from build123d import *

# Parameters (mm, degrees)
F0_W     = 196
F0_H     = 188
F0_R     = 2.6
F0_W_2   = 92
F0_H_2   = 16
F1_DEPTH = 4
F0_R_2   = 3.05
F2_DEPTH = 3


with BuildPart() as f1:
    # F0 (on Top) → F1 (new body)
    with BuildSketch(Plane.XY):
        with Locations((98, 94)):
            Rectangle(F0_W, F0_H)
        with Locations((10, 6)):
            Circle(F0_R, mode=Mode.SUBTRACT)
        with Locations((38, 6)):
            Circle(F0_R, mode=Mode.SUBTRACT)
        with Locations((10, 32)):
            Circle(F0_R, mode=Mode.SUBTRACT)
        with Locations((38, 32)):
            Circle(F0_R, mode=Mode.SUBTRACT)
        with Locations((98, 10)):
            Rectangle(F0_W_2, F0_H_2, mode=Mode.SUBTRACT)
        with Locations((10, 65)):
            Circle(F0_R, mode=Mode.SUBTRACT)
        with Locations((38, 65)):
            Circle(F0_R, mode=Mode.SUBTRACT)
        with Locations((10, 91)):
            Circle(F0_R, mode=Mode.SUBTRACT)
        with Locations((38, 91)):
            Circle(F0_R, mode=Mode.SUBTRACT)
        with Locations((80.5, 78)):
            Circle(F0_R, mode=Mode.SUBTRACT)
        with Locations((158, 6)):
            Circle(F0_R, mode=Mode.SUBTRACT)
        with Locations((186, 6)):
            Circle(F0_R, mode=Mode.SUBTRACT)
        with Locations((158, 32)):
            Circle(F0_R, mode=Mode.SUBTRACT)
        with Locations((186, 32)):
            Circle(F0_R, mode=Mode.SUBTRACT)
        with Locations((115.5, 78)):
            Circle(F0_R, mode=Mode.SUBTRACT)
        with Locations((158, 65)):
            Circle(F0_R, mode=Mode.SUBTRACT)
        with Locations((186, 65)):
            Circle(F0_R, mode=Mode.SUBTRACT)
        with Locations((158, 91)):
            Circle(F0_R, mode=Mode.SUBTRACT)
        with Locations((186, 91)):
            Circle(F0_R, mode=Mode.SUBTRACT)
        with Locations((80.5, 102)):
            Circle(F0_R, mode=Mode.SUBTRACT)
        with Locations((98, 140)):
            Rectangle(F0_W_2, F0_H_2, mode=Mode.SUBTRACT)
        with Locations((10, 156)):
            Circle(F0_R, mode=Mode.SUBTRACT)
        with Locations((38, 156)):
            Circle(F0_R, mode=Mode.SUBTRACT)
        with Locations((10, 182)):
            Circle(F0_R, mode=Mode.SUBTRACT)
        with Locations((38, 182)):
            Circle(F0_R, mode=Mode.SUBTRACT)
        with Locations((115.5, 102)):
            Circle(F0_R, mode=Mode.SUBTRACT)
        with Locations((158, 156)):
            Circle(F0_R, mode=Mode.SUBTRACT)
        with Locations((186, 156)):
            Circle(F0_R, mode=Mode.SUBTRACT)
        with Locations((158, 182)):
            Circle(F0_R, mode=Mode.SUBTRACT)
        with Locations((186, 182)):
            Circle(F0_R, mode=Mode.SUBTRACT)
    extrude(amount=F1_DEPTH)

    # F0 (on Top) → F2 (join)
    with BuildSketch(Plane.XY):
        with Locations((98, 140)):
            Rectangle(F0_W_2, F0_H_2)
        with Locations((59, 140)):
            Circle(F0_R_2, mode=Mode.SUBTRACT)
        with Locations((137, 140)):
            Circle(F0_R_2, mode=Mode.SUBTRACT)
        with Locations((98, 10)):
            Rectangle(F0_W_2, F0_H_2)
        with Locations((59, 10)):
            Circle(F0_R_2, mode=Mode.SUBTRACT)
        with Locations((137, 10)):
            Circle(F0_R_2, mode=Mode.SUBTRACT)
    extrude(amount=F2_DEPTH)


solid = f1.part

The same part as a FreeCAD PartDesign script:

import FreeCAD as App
import Part
import Sketcher

V = App.Vector


def add_polygon(sketch, points):
    """Adds a closed chain of lines whose ends are joined by coincident constraints."""
    first, n = sketch.GeometryCount, len(points)
    for a, b in zip(points, points[1:] + points[:1]):
        sketch.addGeometry(Part.LineSegment(App.Vector(*a, 0), App.Vector(*b, 0)), False)
    for i in range(n):
        sketch.addConstraint(Sketcher.Constraint("Coincident", first + i, 2, first + (i + 1) % n, 1))

doc = App.newDocument("Part")
body = doc.addObject("PartDesign::Body", "Body")

sketch1 = body.newObject("Sketcher::SketchObject", "Sketch")
sketch1.AttachmentSupport = (doc.getObject("XY_Plane"), [""])
sketch1.MapMode = "FlatFace"
add_polygon(sketch1, [(0, 188), (0, 0), (196, 0), (196, 188)])
sketch1.addGeometry(Part.Circle(V(10, 6, 0), V(0, 0, 1), 2.6), False)
sketch1.addGeometry(Part.Circle(V(38, 6, 0), V(0, 0, 1), 2.6), False)
sketch1.addGeometry(Part.Circle(V(10, 32, 0), V(0, 0, 1), 2.6), False)
sketch1.addGeometry(Part.Circle(V(38, 32, 0), V(0, 0, 1), 2.6), False)
sketch1.addGeometry(Part.Circle(V(10, 65, 0), V(0, 0, 1), 2.6), False)
sketch1.addGeometry(Part.Circle(V(38, 65, 0), V(0, 0, 1), 2.6), False)
sketch1.addGeometry(Part.Circle(V(10, 91, 0), V(0, 0, 1), 2.6), False)
sketch1.addGeometry(Part.Circle(V(38, 91, 0), V(0, 0, 1), 2.6), False)
sketch1.addGeometry(Part.Circle(V(80.5, 78, 0), V(0, 0, 1), 2.6), False)
add_polygon(sketch1, [(144, 2), (52, 2), (52, 18), (144, 18)])
sketch1.addGeometry(Part.Circle(V(158, 6, 0), V(0, 0, 1), 2.6), False)
sketch1.addGeometry(Part.Circle(V(186, 6, 0), V(0, 0, 1), 2.6), False)
sketch1.addGeometry(Part.Circle(V(158, 32, 0), V(0, 0, 1), 2.6), False)
sketch1.addGeometry(Part.Circle(V(186, 32, 0), V(0, 0, 1), 2.6), False)
sketch1.addGeometry(Part.Circle(V(115.5, 78, 0), V(0, 0, 1), 2.6), False)
sketch1.addGeometry(Part.Circle(V(158, 65, 0), V(0, 0, 1), 2.6), False)
sketch1.addGeometry(Part.Circle(V(186, 65, 0), V(0, 0, 1), 2.6), False)
sketch1.addGeometry(Part.Circle(V(158, 91, 0), V(0, 0, 1), 2.6), False)
sketch1.addGeometry(Part.Circle(V(186, 91, 0), V(0, 0, 1), 2.6), False)
sketch1.addGeometry(Part.Circle(V(80.5, 102, 0), V(0, 0, 1), 2.6), False)
sketch1.addGeometry(Part.Circle(V(10, 156, 0), V(0, 0, 1), 2.6), False)
sketch1.addGeometry(Part.Circle(V(38, 156, 0), V(0, 0, 1), 2.6), False)
sketch1.addGeometry(Part.Circle(V(10, 182, 0), V(0, 0, 1), 2.6), False)
sketch1.addGeometry(Part.Circle(V(38, 182, 0), V(0, 0, 1), 2.6), False)
sketch1.addGeometry(Part.Circle(V(115.5, 102, 0), V(0, 0, 1), 2.6), False)
add_polygon(sketch1, [(144, 132), (52, 132), (52, 148), (144, 148)])
sketch1.addGeometry(Part.Circle(V(158, 156, 0), V(0, 0, 1), 2.6), False)
sketch1.addGeometry(Part.Circle(V(186, 156, 0), V(0, 0, 1), 2.6), False)
sketch1.addGeometry(Part.Circle(V(158, 182, 0), V(0, 0, 1), 2.6), False)
sketch1.addGeometry(Part.Circle(V(186, 182, 0), V(0, 0, 1), 2.6), False)
sketch1.addConstraint(Sketcher.Constraint("Vertical", 0))
sketch1.addConstraint(Sketcher.Constraint("Horizontal", 1))
sketch1.addConstraint(Sketcher.Constraint("Vertical", 2))
sketch1.addConstraint(Sketcher.Constraint("Horizontal", 3))
sketch1.addConstraint(Sketcher.Constraint("Horizontal", 13))
sketch1.addConstraint(Sketcher.Constraint("Vertical", 14))
sketch1.addConstraint(Sketcher.Constraint("Horizontal", 15))
sketch1.addConstraint(Sketcher.Constraint("Vertical", 16))
sketch1.addConstraint(Sketcher.Constraint("Horizontal", 32))
sketch1.addConstraint(Sketcher.Constraint("Vertical", 33))
sketch1.addConstraint(Sketcher.Constraint("Horizontal", 34))
sketch1.addConstraint(Sketcher.Constraint("Vertical", 35))
sketch1.addConstraint(Sketcher.Constraint("Coincident", 0, 2, -1, 1))
sketch1.addConstraint(Sketcher.Constraint("Equal", 4, 5))
sketch1.addConstraint(Sketcher.Constraint("Equal", 5, 6))
sketch1.addConstraint(Sketcher.Constraint("Equal", 6, 7))
sketch1.addConstraint(Sketcher.Constraint("Equal", 7, 8))
sketch1.addConstraint(Sketcher.Constraint("Equal", 8, 9))
sketch1.addConstraint(Sketcher.Constraint("Equal", 9, 10))
sketch1.addConstraint(Sketcher.Constraint("Equal", 10, 11))
sketch1.addConstraint(Sketcher.Constraint("Equal", 11, 12))
sketch1.addConstraint(Sketcher.Constraint("Equal", 12, 17))
sketch1.addConstraint(Sketcher.Constraint("Equal", 17, 18))
sketch1.addConstraint(Sketcher.Constraint("Equal", 18, 19))
sketch1.addConstraint(Sketcher.Constraint("Equal", 19, 20))
sketch1.addConstraint(Sketcher.Constraint("Equal", 20, 21))
sketch1.addConstraint(Sketcher.Constraint("Equal", 21, 22))
sketch1.addConstraint(Sketcher.Constraint("Equal", 22, 23))
sketch1.addConstraint(Sketcher.Constraint("Equal", 23, 24))
sketch1.addConstraint(Sketcher.Constraint("Equal", 24, 25))
sketch1.addConstraint(Sketcher.Constraint("Equal", 25, 26))
sketch1.addConstraint(Sketcher.Constraint("Equal", 26, 27))
sketch1.addConstraint(Sketcher.Constraint("Equal", 27, 28))
sketch1.addConstraint(Sketcher.Constraint("Equal", 28, 29))
sketch1.addConstraint(Sketcher.Constraint("Equal", 29, 30))
sketch1.addConstraint(Sketcher.Constraint("Equal", 30, 31))
sketch1.addConstraint(Sketcher.Constraint("Equal", 31, 36))
sketch1.addConstraint(Sketcher.Constraint("Equal", 36, 37))
sketch1.addConstraint(Sketcher.Constraint("Equal", 37, 38))
sketch1.addConstraint(Sketcher.Constraint("Equal", 38, 39))
sketch1.addConstraint(Sketcher.Constraint("Horizontal", 4, 3, 5, 3))
sketch1.addConstraint(Sketcher.Constraint("Horizontal", 6, 3, 7, 3))
sketch1.addConstraint(Sketcher.Constraint("Horizontal", 8, 3, 9, 3))
sketch1.addConstraint(Sketcher.Constraint("Horizontal", 10, 3, 11, 3))
sketch1.addConstraint(Sketcher.Constraint("Horizontal", 5, 3, 17, 3))
sketch1.addConstraint(Sketcher.Constraint("Horizontal", 17, 3, 18, 3))
sketch1.addConstraint(Sketcher.Constraint("Horizontal", 7, 3, 19, 3))
sketch1.addConstraint(Sketcher.Constraint("Horizontal", 19, 3, 20, 3))
sketch1.addConstraint(Sketcher.Constraint("Horizontal", 12, 3, 21, 3))
sketch1.addConstraint(Sketcher.Constraint("Horizontal", 9, 3, 22, 3))
sketch1.addConstraint(Sketcher.Constraint("Horizontal", 22, 3, 23, 3))
sketch1.addConstraint(Sketcher.Constraint("Horizontal", 11, 3, 24, 3))
sketch1.addConstraint(Sketcher.Constraint("Horizontal", 24, 3, 25, 3))
sketch1.addConstraint(Sketcher.Constraint("Horizontal", 27, 3, 28, 3))
sketch1.addConstraint(Sketcher.Constraint("Horizontal", 29, 3, 30, 3))
sketch1.addConstraint(Sketcher.Constraint("Horizontal", 26, 3, 31, 3))
sketch1.addConstraint(Sketcher.Constraint("Horizontal", 28, 3, 36, 3))
sketch1.addConstraint(Sketcher.Constraint("Horizontal", 36, 3, 37, 3))
sketch1.addConstraint(Sketcher.Constraint("Horizontal", 30, 3, 38, 3))
sketch1.addConstraint(Sketcher.Constraint("Horizontal", 38, 3, 39, 3))
sketch1.addConstraint(Sketcher.Constraint("Vertical", 4, 3, 6, 3))
sketch1.addConstraint(Sketcher.Constraint("Vertical", 5, 3, 7, 3))
sketch1.addConstraint(Sketcher.Constraint("Vertical", 6, 3, 8, 3))
sketch1.addConstraint(Sketcher.Constraint("Vertical", 7, 3, 9, 3))
sketch1.addConstraint(Sketcher.Constraint("Vertical", 8, 3, 10, 3))
sketch1.addConstraint(Sketcher.Constraint("Vertical", 9, 3, 11, 3))
sketch1.addConstraint(Sketcher.Constraint("Vertical", 17, 3, 19, 3))
sketch1.addConstraint(Sketcher.Constraint("Vertical", 18, 3, 20, 3))
sketch1.addConstraint(Sketcher.Constraint("Vertical", 19, 3, 22, 3))
sketch1.addConstraint(Sketcher.Constraint("Vertical", 20, 3, 23, 3))
sketch1.addConstraint(Sketcher.Constraint("Vertical", 22, 3, 24, 3))
sketch1.addConstraint(Sketcher.Constraint("Vertical", 23, 3, 25, 3))
sketch1.addConstraint(Sketcher.Constraint("Vertical", 12, 3, 26, 3))
sketch1.addConstraint(Sketcher.Constraint("Vertical", 10, 3, 27, 3))
sketch1.addConstraint(Sketcher.Constraint("Vertical", 11, 3, 28, 3))
sketch1.addConstraint(Sketcher.Constraint("Vertical", 27, 3, 29, 3))
sketch1.addConstraint(Sketcher.Constraint("Vertical", 28, 3, 30, 3))
sketch1.addConstraint(Sketcher.Constraint("Vertical", 21, 3, 31, 3))
sketch1.addConstraint(Sketcher.Constraint("Vertical", 24, 3, 36, 3))
sketch1.addConstraint(Sketcher.Constraint("Vertical", 25, 3, 37, 3))
sketch1.addConstraint(Sketcher.Constraint("Vertical", 36, 3, 38, 3))
sketch1.addConstraint(Sketcher.Constraint("Vertical", 37, 3, 39, 3))
sketch1.addConstraint(Sketcher.Constraint("Vertical", 14, 2, 32, 2))
sketch1.addConstraint(Sketcher.Constraint("Vertical", 16, 2, 34, 2))
sketch1.addConstraint(Sketcher.Constraint("Equal", 16, 33))
sketch1.addConstraint(Sketcher.Constraint("Diameter", 4, 5.2))
sketch1.addConstraint(Sketcher.Constraint("DistanceX", 1, 1, 1, 2, 196.0))
sketch1.addConstraint(Sketcher.Constraint("DistanceX", 13, 2, 13, 1, 92.0))
sketch1.addConstraint(Sketcher.Constraint("DistanceY", 0, 2, 0, 1, 188.0))
sketch1.addConstraint(Sketcher.Constraint("DistanceY", 14, 1, 14, 2, 16.0))
sketch1.addConstraint(Sketcher.Constraint("DistanceX", -1, 1, 4, 3, 10.0))
sketch1.addConstraint(Sketcher.Constraint("DistanceY", -1, 1, 4, 3, 6.0))
sketch1.addConstraint(Sketcher.Constraint("DistanceX", -1, 1, 5, 3, 38.0))
sketch1.addConstraint(Sketcher.Constraint("DistanceY", -1, 1, 6, 3, 32.0))
sketch1.addConstraint(Sketcher.Constraint("DistanceY", -1, 1, 8, 3, 65.0))
sketch1.addConstraint(Sketcher.Constraint("DistanceY", -1, 1, 10, 3, 91.0))
sketch1.addConstraint(Sketcher.Constraint("DistanceY", -1, 1, 12, 3, 78.0))
sketch1.addConstraint(Sketcher.Constraint("DistanceX", -1, 1, 17, 3, 158.0))
sketch1.addConstraint(Sketcher.Constraint("DistanceX", -1, 1, 18, 3, 186.0))
sketch1.addConstraint(Sketcher.Constraint("DistanceY", -1, 1, 26, 3, 102.0))
sketch1.addConstraint(Sketcher.Constraint("DistanceY", -1, 1, 27, 3, 156.0))
sketch1.addConstraint(Sketcher.Constraint("DistanceY", -1, 1, 29, 3, 182.0))
sketch1.addConstraint(Sketcher.Constraint("DistanceX", -1, 1, 13, 2, 52.0))
sketch1.addConstraint(Sketcher.Constraint("DistanceY", -1, 1, 13, 2, 2.0))
sketch1.addConstraint(Sketcher.Constraint("DistanceY", -1, 1, 32, 2, 132.0))
sketch1.addConstraint(Sketcher.Constraint("DistanceX", 12, 3, 21, 3, 35.0))
sketch1.addConstraint(Sketcher.Constraint("DistanceX", -1, 1, 12, 3, 80.5))
pad1 = body.newObject("PartDesign::Pad", "Pad")
pad1.Profile = sketch1
pad1.Length = 4

sketch2 = body.newObject("Sketcher::SketchObject", "Sketch001")
sketch2.AttachmentSupport = (doc.getObject("XY_Plane"), [""])
sketch2.MapMode = "FlatFace"
add_polygon(sketch2, [(52, 148), (52, 132), (144, 132), (144, 148)])
sketch2.addGeometry(Part.Circle(V(59, 140, 0), V(0, 0, 1), 3), False)
sketch2.addGeometry(Part.Circle(V(137, 140, 0), V(0, 0, 1), 3), False)
add_polygon(sketch2, [(52, 18), (52, 2), (144, 2), (144, 18)])
sketch2.addGeometry(Part.Circle(V(59, 10, 0), V(0, 0, 1), 3), False)
sketch2.addGeometry(Part.Circle(V(137, 10, 0), V(0, 0, 1), 3), False)
sketch2.addConstraint(Sketcher.Constraint("Vertical", 0))
sketch2.addConstraint(Sketcher.Constraint("Horizontal", 1))
sketch2.addConstraint(Sketcher.Constraint("Vertical", 2))
sketch2.addConstraint(Sketcher.Constraint("Horizontal", 3))
sketch2.addConstraint(Sketcher.Constraint("Vertical", 6))
sketch2.addConstraint(Sketcher.Constraint("Horizontal", 7))
sketch2.addConstraint(Sketcher.Constraint("Vertical", 8))
sketch2.addConstraint(Sketcher.Constraint("Horizontal", 9))
sketch2.addConstraint(Sketcher.Constraint("Equal", 4, 5))
sketch2.addConstraint(Sketcher.Constraint("Equal", 5, 10))
sketch2.addConstraint(Sketcher.Constraint("Equal", 10, 11))
sketch2.addConstraint(Sketcher.Constraint("Horizontal", 4, 3, 5, 3))
sketch2.addConstraint(Sketcher.Constraint("Horizontal", 10, 3, 11, 3))
sketch2.addConstraint(Sketcher.Constraint("Vertical", 4, 3, 10, 3))
sketch2.addConstraint(Sketcher.Constraint("Vertical", 5, 3, 11, 3))
sketch2.addConstraint(Sketcher.Constraint("Vertical", 3, 2, 6, 2))
sketch2.addConstraint(Sketcher.Constraint("Vertical", 2, 2, 7, 2))
sketch2.addConstraint(Sketcher.Constraint("Equal", 2, 6))
sketch2.addConstraint(Sketcher.Constraint("Diameter", 4, 6.1))
sketch2.addConstraint(Sketcher.Constraint("DistanceX", 1, 1, 1, 2, 92.0))
sketch2.addConstraint(Sketcher.Constraint("DistanceY", 0, 2, 0, 1, 16.0))
sketch2.addConstraint(Sketcher.Constraint("DistanceX", -1, 1, 4, 3, 59.0))
sketch2.addConstraint(Sketcher.Constraint("DistanceY", -1, 1, 4, 3, 140.0))
sketch2.addConstraint(Sketcher.Constraint("DistanceX", -1, 1, 5, 3, 137.0))
sketch2.addConstraint(Sketcher.Constraint("DistanceY", -1, 1, 10, 3, 10.0))
sketch2.addConstraint(Sketcher.Constraint("DistanceX", -1, 1, 0, 2, 52.0))
sketch2.addConstraint(Sketcher.Constraint("DistanceY", -1, 1, 0, 2, 132.0))
sketch2.addConstraint(Sketcher.Constraint("DistanceY", -1, 1, 6, 2, 2.0))
pad2 = body.newObject("PartDesign::Pad", "Pad001")
pad2.Profile = sketch2
pad2.Length = 3

doc.recompute()
